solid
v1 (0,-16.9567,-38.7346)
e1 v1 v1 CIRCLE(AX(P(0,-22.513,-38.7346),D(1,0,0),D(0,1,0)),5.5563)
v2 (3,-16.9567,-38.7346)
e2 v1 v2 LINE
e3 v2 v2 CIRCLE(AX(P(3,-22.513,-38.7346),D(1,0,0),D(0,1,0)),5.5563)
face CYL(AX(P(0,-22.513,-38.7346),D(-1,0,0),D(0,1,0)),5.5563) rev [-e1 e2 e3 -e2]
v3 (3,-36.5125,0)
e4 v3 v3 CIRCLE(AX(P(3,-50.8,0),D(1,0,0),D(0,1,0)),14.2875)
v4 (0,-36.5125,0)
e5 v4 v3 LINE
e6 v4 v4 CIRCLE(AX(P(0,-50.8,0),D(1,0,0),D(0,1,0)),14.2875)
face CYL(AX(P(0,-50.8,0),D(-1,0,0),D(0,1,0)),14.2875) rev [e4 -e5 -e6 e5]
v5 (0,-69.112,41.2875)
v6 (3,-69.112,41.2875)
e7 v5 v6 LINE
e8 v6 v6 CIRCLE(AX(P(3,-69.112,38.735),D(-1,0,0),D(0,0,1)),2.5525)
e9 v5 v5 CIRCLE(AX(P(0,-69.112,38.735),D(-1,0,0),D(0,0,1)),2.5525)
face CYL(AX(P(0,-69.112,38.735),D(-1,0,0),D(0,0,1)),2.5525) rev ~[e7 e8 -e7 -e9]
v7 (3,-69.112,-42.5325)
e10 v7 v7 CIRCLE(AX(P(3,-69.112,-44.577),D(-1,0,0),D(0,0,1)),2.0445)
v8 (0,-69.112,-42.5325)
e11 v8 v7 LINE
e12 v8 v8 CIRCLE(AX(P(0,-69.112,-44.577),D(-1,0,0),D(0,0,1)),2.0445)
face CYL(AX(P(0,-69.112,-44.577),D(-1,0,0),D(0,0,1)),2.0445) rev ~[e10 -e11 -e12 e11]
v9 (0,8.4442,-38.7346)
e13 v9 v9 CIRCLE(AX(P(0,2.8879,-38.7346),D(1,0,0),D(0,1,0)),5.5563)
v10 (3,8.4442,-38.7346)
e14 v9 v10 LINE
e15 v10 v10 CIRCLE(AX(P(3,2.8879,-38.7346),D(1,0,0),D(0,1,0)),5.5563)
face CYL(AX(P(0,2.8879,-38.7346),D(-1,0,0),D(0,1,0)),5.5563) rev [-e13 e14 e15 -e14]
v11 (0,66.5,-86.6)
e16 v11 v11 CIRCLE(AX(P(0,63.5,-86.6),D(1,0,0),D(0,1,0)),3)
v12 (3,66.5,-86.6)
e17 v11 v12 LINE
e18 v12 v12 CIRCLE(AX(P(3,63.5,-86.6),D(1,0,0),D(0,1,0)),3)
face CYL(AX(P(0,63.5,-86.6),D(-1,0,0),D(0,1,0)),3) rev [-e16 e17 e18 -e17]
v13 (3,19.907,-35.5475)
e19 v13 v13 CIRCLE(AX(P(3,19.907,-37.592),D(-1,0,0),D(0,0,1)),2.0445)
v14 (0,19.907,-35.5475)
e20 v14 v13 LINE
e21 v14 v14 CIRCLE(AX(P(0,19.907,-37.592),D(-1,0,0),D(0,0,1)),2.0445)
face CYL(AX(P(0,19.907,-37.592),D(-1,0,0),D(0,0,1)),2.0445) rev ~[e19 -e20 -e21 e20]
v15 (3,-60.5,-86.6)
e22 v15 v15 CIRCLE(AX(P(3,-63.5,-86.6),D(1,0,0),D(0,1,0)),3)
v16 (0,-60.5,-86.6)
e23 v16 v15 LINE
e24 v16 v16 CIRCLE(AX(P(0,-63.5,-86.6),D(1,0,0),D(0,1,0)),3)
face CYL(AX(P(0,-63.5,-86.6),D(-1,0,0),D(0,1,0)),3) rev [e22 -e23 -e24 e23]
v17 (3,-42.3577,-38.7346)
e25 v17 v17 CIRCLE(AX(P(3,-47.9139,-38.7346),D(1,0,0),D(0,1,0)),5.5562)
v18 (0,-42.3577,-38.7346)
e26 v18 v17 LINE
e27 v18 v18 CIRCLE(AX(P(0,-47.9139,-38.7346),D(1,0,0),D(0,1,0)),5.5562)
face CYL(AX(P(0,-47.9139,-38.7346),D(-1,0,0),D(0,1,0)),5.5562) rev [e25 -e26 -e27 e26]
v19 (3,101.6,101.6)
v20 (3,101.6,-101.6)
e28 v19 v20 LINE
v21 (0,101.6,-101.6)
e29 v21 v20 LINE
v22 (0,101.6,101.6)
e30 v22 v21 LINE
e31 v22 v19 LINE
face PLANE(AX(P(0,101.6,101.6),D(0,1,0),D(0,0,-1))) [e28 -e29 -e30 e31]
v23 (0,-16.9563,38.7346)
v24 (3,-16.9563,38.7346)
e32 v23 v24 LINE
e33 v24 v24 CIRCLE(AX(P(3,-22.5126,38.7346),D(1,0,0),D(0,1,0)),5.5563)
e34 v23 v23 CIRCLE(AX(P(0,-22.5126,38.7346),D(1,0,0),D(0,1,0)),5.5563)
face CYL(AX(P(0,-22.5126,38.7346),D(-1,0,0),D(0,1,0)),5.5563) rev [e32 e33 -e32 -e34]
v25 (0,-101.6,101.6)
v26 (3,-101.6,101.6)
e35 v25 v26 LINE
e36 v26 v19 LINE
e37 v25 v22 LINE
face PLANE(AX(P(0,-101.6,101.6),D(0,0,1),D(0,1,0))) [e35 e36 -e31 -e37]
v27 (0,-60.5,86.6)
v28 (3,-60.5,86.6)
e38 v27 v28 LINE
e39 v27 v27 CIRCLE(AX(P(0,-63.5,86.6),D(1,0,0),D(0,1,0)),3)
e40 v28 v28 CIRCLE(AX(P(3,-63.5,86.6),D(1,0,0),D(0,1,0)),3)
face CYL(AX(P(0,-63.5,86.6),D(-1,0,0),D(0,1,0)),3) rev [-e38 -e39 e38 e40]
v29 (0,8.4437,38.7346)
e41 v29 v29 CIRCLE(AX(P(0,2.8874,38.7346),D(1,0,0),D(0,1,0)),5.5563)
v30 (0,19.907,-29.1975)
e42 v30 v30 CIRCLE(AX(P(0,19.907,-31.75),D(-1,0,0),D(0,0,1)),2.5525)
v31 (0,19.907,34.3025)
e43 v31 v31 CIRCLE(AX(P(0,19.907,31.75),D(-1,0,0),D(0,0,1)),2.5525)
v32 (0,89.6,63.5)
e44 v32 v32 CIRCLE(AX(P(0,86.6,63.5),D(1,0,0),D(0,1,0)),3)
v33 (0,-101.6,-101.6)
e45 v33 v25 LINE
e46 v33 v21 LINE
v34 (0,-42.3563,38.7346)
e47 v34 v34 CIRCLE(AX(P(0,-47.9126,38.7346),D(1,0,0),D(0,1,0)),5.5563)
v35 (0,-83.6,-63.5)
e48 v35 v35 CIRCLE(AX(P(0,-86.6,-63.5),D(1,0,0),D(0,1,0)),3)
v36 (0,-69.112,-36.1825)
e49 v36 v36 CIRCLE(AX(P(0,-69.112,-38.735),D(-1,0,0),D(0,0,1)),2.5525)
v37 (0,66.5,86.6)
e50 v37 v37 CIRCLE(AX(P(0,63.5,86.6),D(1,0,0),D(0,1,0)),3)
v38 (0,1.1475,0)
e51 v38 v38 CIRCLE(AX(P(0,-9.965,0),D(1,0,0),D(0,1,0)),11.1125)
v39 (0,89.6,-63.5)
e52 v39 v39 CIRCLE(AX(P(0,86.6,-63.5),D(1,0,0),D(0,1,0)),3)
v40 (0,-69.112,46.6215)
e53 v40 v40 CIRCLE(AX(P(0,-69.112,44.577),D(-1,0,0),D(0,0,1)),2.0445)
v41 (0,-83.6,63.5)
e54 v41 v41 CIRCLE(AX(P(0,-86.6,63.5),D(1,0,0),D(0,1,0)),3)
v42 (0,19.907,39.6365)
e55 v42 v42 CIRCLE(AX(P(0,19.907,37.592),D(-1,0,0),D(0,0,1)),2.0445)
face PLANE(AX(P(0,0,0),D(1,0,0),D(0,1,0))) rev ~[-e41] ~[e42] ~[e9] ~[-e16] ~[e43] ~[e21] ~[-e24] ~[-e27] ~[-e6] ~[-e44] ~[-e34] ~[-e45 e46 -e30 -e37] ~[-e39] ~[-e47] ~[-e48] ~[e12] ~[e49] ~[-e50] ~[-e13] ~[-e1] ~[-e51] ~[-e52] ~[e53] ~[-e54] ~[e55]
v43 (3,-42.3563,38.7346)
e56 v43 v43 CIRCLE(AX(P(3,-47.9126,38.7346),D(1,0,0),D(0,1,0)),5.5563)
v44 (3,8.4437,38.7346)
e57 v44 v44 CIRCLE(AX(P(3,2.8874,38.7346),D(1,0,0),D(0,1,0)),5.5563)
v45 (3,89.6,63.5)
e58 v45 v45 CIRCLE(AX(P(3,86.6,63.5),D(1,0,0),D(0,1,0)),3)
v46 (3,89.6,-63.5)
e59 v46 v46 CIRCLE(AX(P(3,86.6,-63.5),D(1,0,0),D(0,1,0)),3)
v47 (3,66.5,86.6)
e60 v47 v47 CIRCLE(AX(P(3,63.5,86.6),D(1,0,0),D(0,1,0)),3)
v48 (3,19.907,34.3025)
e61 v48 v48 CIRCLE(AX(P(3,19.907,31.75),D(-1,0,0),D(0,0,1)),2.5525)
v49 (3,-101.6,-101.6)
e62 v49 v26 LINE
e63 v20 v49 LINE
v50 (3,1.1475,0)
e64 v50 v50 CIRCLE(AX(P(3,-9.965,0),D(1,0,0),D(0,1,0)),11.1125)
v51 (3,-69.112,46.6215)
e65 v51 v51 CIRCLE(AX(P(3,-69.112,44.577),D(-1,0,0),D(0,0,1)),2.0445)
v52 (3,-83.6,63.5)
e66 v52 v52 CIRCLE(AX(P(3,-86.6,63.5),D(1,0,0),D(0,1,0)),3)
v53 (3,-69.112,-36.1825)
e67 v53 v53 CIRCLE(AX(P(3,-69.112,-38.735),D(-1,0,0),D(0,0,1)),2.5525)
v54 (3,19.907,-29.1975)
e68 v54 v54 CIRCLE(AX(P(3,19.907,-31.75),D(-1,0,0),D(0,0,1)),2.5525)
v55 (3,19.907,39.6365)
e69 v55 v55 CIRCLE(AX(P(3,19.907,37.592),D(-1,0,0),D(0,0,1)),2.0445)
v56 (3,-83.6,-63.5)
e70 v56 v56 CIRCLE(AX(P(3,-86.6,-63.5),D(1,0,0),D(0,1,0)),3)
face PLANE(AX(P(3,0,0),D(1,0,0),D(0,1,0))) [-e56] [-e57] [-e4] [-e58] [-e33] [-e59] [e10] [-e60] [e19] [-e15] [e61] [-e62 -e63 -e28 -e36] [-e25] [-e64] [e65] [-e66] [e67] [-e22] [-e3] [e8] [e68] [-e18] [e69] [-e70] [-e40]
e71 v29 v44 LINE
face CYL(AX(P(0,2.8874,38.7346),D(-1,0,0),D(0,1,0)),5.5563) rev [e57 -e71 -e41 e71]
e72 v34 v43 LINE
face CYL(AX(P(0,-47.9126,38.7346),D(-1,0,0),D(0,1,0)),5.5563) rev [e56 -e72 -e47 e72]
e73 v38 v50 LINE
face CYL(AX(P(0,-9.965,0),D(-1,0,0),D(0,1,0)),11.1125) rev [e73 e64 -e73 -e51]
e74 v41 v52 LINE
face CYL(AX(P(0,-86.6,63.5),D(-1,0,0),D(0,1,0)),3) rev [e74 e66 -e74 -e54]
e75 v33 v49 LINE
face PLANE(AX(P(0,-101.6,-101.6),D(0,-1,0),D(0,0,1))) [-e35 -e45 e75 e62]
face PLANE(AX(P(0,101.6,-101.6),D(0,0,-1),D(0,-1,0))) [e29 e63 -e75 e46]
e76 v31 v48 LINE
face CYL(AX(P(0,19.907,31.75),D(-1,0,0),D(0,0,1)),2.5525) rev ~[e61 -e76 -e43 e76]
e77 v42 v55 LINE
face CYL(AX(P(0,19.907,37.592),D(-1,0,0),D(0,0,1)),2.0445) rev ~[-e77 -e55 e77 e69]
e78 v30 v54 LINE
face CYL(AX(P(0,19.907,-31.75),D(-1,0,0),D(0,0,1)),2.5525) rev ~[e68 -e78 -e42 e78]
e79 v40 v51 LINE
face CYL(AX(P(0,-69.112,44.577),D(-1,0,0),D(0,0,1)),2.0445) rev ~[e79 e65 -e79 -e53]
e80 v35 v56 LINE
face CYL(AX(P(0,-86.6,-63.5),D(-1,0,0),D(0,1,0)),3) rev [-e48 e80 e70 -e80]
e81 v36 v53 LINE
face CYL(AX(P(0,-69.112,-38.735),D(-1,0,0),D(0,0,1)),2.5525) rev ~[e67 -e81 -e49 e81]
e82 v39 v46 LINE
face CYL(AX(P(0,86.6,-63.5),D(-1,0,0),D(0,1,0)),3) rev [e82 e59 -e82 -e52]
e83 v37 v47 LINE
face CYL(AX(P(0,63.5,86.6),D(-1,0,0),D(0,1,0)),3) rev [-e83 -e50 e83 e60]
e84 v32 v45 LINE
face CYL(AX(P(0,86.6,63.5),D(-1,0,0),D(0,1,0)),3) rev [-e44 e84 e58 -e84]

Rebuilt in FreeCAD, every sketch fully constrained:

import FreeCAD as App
import Part
import Sketcher

V = App.Vector
Q = App.Units.Quantity

doc = App.newDocument("Part")
body = doc.addObject("PartDesign::Body", "Body")

# Sketch on YZ plane
sketch1 = body.newObject("Sketcher::SketchObject", "Sketch")
sketch1.AttachmentSupport = (doc.getObject("YZ_Plane"), [""])
sketch1.MapMode = "FlatFace"
sketch1.addGeometry(Part.LineSegment(V(101.6, -101.6, 0), V(101.6, 101.6, 0)), False)
sketch1.addGeometry(Part.LineSegment(V(101.6, 101.6, 0), V(-101.6, 101.6, 0)), False)
sketch1.addGeometry(Part.LineSegment(V(-101.6, 101.6, 0), V(-101.6, -101.6, 0)), False)
sketch1.addGeometry(Part.LineSegment(V(-101.6, -101.6, 0), V(101.6, -101.6, 0)), False)
sketch1.addGeometry(Part.Circle(V(-63.5, -86.6, 0), V(0, 0, 1), 3), False)
sketch1.addGeometry(Part.Circle(V(-86.6, -63.5, 0), V(0, 0, 1), 3), False)
sketch1.addGeometry(Part.Circle(V(-50.8, 0, 0), V(0, 0, 1), 14.3), False)
sketch1.addGeometry(Part.Circle(V(-47.9, -38.7, 0), V(0, 0, 1), 5.6), False)
sketch1.addGeometry(Part.Circle(V(-22.5, -38.7, 0), V(0, 0, 1), 5.6), False)
sketch1.addGeometry(Part.Circle(V(-10, 0, 0), V(0, 0, 1), 11.1), False)
sketch1.addGeometry(Part.Circle(V(63.5, -86.6, 0), V(0, 0, 1), 3), False)
sketch1.addGeometry(Part.Circle(V(86.6, -63.5, 0), V(0, 0, 1), 3), False)
sketch1.addGeometry(Part.Circle(V(2.9, -38.7, 0), V(0, 0, 1), 5.6), False)
sketch1.addGeometry(Part.Circle(V(-47.9, 38.7, 0), V(0, 0, 1), 5.6), False)
sketch1.addGeometry(Part.Circle(V(-22.5, 38.7, 0), V(0, 0, 1), 5.6), False)
sketch1.addGeometry(Part.Circle(V(-86.6, 63.5, 0), V(0, 0, 1), 3), False)
sketch1.addGeometry(Part.Circle(V(-63.5, 86.6, 0), V(0, 0, 1), 3), False)
sketch1.addGeometry(Part.Circle(V(2.9, 38.7, 0), V(0, 0, 1), 5.6), False)
sketch1.addGeometry(Part.Circle(V(86.6, 63.5, 0), V(0, 0, 1), 3), False)
sketch1.addGeometry(Part.Circle(V(63.5, 86.6, 0), V(0, 0, 1), 3), False)
sketch1.addConstraint(Sketcher.Constraint("Coincident", 0, 2, 1, 1))
sketch1.addConstraint(Sketcher.Constraint("Coincident", 1, 2, 2, 1))
sketch1.addConstraint(Sketcher.Constraint("Coincident", 2, 2, 3, 1))
sketch1.addConstraint(Sketcher.Constraint("Coincident", 3, 2, 0, 1))
sketch1.addConstraint(Sketcher.Constraint("Vertical", 0))
sketch1.addConstraint(Sketcher.Constraint("Horizontal", 1))
sketch1.addConstraint(Sketcher.Constraint("Vertical", 2))
sketch1.addConstraint(Sketcher.Constraint("Horizontal", 3))
sketch1.addConstraint(Sketcher.Constraint("Equal", 4, 5))
sketch1.addConstraint(Sketcher.Constraint("Equal", 7, 8))
sketch1.addConstraint(Sketcher.Constraint("Equal", 5, 10))
sketch1.addConstraint(Sketcher.Constraint("Equal", 10, 11))
sketch1.addConstraint(Sketcher.Constraint("Equal", 8, 12))
sketch1.addConstraint(Sketcher.Constraint("Equal", 12, 13))
sketch1.addConstraint(Sketcher.Constraint("Equal", 13, 14))
sketch1.addConstraint(Sketcher.Constraint("Equal", 11, 15))
sketch1.addConstraint(Sketcher.Constraint("Equal", 15, 16))
sketch1.addConstraint(Sketcher.Constraint("Equal", 14, 17))
sketch1.addConstraint(Sketcher.Constraint("Equal", 16, 18))
sketch1.addConstraint(Sketcher.Constraint("Equal", 18, 19))
sketch1.addConstraint(Sketcher.Constraint("Symmetric", 11, 3, 15, 3, -1, 1))
sketch1.addConstraint(Sketcher.Constraint("Symmetric", 10, 3, 16, 3, -1, 1))
sketch1.addConstraint(Sketcher.Constraint("Symmetric", 5, 3, 18, 3, -1, 1))
sketch1.addConstraint(Sketcher.Constraint("Symmetric", 4, 3, 19, 3, -1, 1))
sketch1.addConstraint(Sketcher.Constraint("Symmetric", 0, 2, 2, 2, -1, 1))
sketch1.addConstraint(Sketcher.Constraint("Symmetric", 4, 3, 10, 3, -2))
sketch1.addConstraint(Sketcher.Constraint("Symmetric", 5, 3, 11, 3, -2))
sketch1.addConstraint(Sketcher.Constraint("PointOnObject", 6, 3, -1))
sketch1.addConstraint(Sketcher.Constraint("PointOnObject", 9, 3, -1))
sketch1.addConstraint(Sketcher.Constraint("Horizontal", 7, 3, 8, 3))
sketch1.addConstraint(Sketcher.Constraint("Horizontal", 8, 3, 12, 3))
sketch1.addConstraint(Sketcher.Constraint("Horizontal", 13, 3, 14, 3))
sketch1.addConstraint(Sketcher.Constraint("Horizontal", 14, 3, 17, 3))
sketch1.addConstraint(Sketcher.Constraint("Equal", 3, 0))
sketch1.addConstraint(Sketcher.Constraint("DistanceX", 1, 2, 1, 1, Q("8 in")))
sketch1.addConstraint(Sketcher.Constraint("Diameter", 6, Q("1.125 in")))
sketch1.addConstraint(Sketcher.Constraint("Diameter", 7, Q("0.4375 in")))
sketch1.addConstraint(Sketcher.Constraint("Diameter", 9, Q("0.875 in")))
sketch1.addConstraint(Sketcher.Constraint("DistanceX", 6, 3, -1, 1, Q("2 in")))
sketch1.addConstraint(Sketcher.Constraint("DistanceX", 13, 3, 17, 3, Q("2 in")))
sketch1.addConstraint(Sketcher.Constraint("DistanceY", 18, 3, 0, 2, Q("1.5 in")))
sketch1.addConstraint(Sketcher.Constraint("DistanceX", 19, 3, 0, 2, Q("1.5 in")))
sketch1.addConstraint(Sketcher.Constraint("Diameter", 4, Q("6 mm")))
sketch1.addConstraint(Sketcher.Constraint("DistanceX", 13, 3, 14, 3, Q("1 in")))
sketch1.addConstraint(Sketcher.Constraint("DistanceX", 7, 3, 8, 3, Q("25.401 mm")))
sketch1.addConstraint(Sketcher.Constraint("DistanceX", 6, 3, 9, 3, Q("40.835 mm")))
sketch1.addConstraint(Sketcher.Constraint("DistanceX", 8, 3, 12, 3, Q("25.401 mm")))
sketch1.addConstraint(Sketcher.Constraint("DistanceX", 13, 3, 12, 3, Q("50.8005 mm")))
sketch1.addConstraint(Sketcher.Constraint("DistanceX", 18, 3, 0, 2, Q("15 mm")))
sketch1.addConstraint(Sketcher.Constraint("DistanceY", 19, 3, 0, 2, Q("15 mm")))
sketch1.addConstraint(Sketcher.Constraint("DistanceX", 2, 2, 7, 3, Q("53.686 mm")))
sketch1.addConstraint(Sketcher.Constraint("DistanceY", 7, 3, -1, 1, Q("38.7346 mm")))
sketch1.addConstraint(Sketcher.Constraint("DistanceY", -1, 1, 13, 3, Q("38.7346 mm")))
pad1 = body.newObject("PartDesign::Pad", "Pad")
pad1.Profile = sketch1
pad1.Length = Q("0.1181102 in")

# Sketch on YZ plane
sketch2 = body.newObject("Sketcher::SketchObject", "Sketch001")
sketch2.AttachmentSupport = (doc.getObject("YZ_Plane"), [""])
sketch2.MapMode = "FlatFace"
sketch2.addGeometry(Part.Circle(V(-69.1, 38.7, 0), V(0, 0, 1), 2.6), False)
sketch2.addGeometry(Part.Circle(V(-69.1, 44.6, 0), V(0, 0, 1), 2), False)
sketch2.addGeometry(Part.Circle(V(-69.1, -44.6, 0), V(0, 0, 1), 2), False)
sketch2.addGeometry(Part.Circle(V(-69.1, -38.7, 0), V(0, 0, 1), 2.6), False)
sketch2.addGeometry(Part.Circle(V(19.9, 37.6, 0), V(0, 0, 1), 2), False)
sketch2.addGeometry(Part.Circle(V(19.9, 31.8, 0), V(0, 0, 1), 2.6), False)
sketch2.addGeometry(Part.Circle(V(19.9, -37.6, 0), V(0, 0, 1), 2), False)
sketch2.addGeometry(Part.Circle(V(19.9, -31.8, 0), V(0, 0, 1), 2.6), False)
sketch2.addConstraint(Sketcher.Constraint("Equal", 1, 2))
sketch2.addConstraint(Sketcher.Constraint("Equal", 0, 3))
sketch2.addConstraint(Sketcher.Constraint("Equal", 2, 4))
sketch2.addConstraint(Sketcher.Constraint("Equal", 3, 5))
sketch2.addConstraint(Sketcher.Constraint("Equal", 4, 6))
sketch2.addConstraint(Sketcher.Constraint("Equal", 5, 7))
sketch2.addConstraint(Sketcher.Constraint("Symmetric", 1, 3, 2, 3, -1))
sketch2.addConstraint(Sketcher.Constraint("Symmetric", 0, 3, 3, 3, -1))
sketch2.addConstraint(Sketcher.Constraint("Symmetric", 4, 3, 6, 3, -1))
sketch2.addConstraint(Sketcher.Constraint("Symmetric", 5, 3, 7, 3, -1))
sketch2.addConstraint(Sketcher.Constraint("Vertical", 0, 3, 1, 3))
sketch2.addConstraint(Sketcher.Constraint("Vertical", 4, 3, 5, 3))
sketch2.addConstraint(Sketcher.Constraint("Diameter", 0, Q("5.105 mm")))
sketch2.addConstraint(Sketcher.Constraint("Diameter", 1, Q("4.089 mm")))
sketch2.addConstraint(Sketcher.Constraint("DistanceY", -1, 1, 4, 3, Q("1.48 in")))
sketch2.addConstraint(Sketcher.Constraint("DistanceY", 0, 3, 1, 3, Q("0.23 in")))
sketch2.addConstraint(Sketcher.Constraint("DistanceY", 2, 3, 1, 3, Q("3.51 in")))
sketch2.addConstraint(Sketcher.Constraint("DistanceY", 5, 3, 4, 3, Q("0.23 in")))
sketch2.addConstraint(Sketcher.Constraint("DistanceX", 0, 3, -1, 1, Q("69.112 mm")))
sketch2.addConstraint(Sketcher.Constraint("DistanceX", -1, 1, 4, 3, Q("19.907 mm")))
pocket1 = body.newObject("PartDesign::Pocket", "Pocket")
pocket1.Profile = sketch2
pocket1.Length = Q("0.3937008 in")
pocket1.Reversed = True

doc.recompute()
